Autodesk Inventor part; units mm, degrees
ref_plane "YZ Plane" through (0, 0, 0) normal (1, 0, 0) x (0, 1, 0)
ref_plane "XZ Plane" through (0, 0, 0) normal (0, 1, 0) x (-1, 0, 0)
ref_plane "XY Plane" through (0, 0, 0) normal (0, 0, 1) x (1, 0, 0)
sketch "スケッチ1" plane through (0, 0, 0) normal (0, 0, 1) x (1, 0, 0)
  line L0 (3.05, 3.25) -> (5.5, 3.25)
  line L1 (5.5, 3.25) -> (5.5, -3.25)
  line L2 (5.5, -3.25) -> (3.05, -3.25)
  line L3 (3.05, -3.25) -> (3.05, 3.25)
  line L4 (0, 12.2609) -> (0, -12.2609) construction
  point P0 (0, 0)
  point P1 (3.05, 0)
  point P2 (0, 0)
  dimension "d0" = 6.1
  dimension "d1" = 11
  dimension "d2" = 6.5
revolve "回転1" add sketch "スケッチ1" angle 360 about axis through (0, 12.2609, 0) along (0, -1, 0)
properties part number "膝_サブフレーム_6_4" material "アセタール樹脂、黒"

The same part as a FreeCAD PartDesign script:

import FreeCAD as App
import Part
import Sketcher

doc = App.newDocument("Part")
body = doc.addObject("PartDesign::Body", "Body")

# Sketch on XY plane
sketch1 = body.newObject("Sketcher::SketchObject", "Sketch")
sketch1.AttachmentSupport = (doc.getObject("XY_Plane"), [""])
sketch1.MapMode = "FlatFace"
sketch1.addGeometry([
    Part.LineSegment(App.Vector(5.5, 3.2, 0), App.Vector(3, 3.2, 0)),
    Part.LineSegment(App.Vector(3, 3.2, 0), App.Vector(3, -3.2, 0)),
    Part.LineSegment(App.Vector(3, -3.2, 0), App.Vector(5.5, -3.2, 0)),
    Part.LineSegment(App.Vector(5.5, -3.2, 0), App.Vector(5.5, 3.2, 0)),
], False)
sketch1.addConstraint([
    Sketcher.Constraint("Coincident", 0, 2, 1, 1),
    Sketcher.Constraint("Coincident", 1, 2, 2, 1),
    Sketcher.Constraint("Coincident", 2, 2, 3, 1),
    Sketcher.Constraint("Coincident", 3, 2, 0, 1),
    Sketcher.Constraint("Horizontal", 0),
    Sketcher.Constraint("Vertical", 1),
    Sketcher.Constraint("Horizontal", 2),
    Sketcher.Constraint("Vertical", 3),
    Sketcher.Constraint("DistanceY", 1, 2, 1, 1, 6.5),
    Sketcher.Constraint("DistanceX", 0, 2, 0, 1, 2.45),
    Sketcher.Constraint("DistanceX", -1, 1, 2, 2, 5.5),
    Sketcher.Constraint("DistanceY", -1, 1, 0, 2, 3.25),
])
revolution = body.newObject("PartDesign::Revolution", "Revolution")
revolution.Profile = sketch1
revolution.ReferenceAxis = (sketch1, ["V_Axis"])
revolution.Angle = 360

doc.recompute()
